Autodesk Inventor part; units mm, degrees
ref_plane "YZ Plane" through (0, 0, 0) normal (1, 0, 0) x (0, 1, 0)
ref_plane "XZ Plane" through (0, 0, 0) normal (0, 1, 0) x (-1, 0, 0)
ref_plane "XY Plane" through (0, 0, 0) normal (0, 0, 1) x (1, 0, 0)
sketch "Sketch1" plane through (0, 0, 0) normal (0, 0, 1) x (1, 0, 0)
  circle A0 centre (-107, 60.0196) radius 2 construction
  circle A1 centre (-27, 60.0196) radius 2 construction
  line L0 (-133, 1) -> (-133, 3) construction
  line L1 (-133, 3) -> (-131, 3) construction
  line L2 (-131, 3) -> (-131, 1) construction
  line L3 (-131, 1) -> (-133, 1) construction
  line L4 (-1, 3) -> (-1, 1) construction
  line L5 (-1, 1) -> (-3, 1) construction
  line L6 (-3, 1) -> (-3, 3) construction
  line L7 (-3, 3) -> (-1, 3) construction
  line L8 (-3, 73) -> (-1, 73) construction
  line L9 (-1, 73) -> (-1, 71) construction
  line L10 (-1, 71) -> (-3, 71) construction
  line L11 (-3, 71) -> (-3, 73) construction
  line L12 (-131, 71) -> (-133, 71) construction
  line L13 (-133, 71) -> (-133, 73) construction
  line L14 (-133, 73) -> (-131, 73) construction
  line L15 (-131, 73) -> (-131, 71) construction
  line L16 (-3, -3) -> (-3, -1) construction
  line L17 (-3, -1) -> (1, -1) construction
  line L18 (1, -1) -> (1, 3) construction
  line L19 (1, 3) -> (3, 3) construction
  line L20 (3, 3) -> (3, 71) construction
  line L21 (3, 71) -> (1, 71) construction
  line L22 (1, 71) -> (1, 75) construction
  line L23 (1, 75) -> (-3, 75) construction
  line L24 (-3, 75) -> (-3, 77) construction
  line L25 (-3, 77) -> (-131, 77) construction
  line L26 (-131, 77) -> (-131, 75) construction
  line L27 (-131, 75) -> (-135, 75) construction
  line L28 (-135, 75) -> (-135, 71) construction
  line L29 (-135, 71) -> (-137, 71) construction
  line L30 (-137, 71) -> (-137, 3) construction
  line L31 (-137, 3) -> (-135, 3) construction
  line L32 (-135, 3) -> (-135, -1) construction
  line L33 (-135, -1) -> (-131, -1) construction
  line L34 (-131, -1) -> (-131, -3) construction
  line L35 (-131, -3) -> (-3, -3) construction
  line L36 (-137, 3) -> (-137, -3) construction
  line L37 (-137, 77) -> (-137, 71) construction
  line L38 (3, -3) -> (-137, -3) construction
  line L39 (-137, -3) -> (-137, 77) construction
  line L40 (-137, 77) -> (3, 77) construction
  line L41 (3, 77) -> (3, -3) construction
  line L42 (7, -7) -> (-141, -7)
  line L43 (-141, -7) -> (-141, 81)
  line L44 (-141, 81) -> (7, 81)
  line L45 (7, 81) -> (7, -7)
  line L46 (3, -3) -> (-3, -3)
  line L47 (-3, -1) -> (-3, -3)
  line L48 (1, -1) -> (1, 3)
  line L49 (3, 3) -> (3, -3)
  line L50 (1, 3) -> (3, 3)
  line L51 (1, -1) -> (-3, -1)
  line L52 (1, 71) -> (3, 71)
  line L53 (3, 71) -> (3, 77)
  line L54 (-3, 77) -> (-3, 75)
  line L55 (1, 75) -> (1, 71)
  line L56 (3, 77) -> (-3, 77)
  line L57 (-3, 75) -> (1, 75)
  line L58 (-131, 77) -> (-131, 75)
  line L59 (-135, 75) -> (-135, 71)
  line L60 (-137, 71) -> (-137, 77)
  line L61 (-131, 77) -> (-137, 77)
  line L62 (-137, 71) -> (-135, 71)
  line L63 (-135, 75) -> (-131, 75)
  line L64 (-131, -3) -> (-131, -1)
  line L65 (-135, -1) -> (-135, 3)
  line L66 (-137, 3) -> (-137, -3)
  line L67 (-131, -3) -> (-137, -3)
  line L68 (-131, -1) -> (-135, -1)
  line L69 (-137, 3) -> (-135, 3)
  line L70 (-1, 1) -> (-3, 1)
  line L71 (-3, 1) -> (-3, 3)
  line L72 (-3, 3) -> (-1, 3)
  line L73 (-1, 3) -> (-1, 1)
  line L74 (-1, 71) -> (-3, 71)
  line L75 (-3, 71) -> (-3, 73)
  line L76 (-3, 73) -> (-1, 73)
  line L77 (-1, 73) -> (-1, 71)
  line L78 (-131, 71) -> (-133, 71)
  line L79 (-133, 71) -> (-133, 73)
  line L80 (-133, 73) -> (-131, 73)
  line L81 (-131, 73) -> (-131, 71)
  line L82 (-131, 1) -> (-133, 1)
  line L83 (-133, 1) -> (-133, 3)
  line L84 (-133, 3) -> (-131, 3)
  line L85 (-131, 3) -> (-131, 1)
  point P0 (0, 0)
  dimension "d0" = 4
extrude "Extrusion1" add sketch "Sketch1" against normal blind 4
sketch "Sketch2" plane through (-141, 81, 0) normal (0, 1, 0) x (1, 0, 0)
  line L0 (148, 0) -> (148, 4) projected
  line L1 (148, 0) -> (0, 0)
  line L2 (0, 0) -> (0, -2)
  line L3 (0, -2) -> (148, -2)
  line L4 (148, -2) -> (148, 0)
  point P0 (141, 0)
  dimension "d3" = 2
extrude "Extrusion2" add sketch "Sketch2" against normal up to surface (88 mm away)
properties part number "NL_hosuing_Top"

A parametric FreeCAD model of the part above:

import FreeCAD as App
import Part
import Sketcher

V = App.Vector


def add_polygon(sketch, points):
    """Adds a closed chain of lines whose ends are joined by coincident constraints."""
    first, n = sketch.GeometryCount, len(points)
    for a, b in zip(points, points[1:] + points[:1]):
        sketch.addGeometry(Part.LineSegment(App.Vector(*a, 0), App.Vector(*b, 0)), False)
    for i in range(n):
        sketch.addConstraint(Sketcher.Constraint("Coincident", first + i, 2, first + (i + 1) % n, 1))

doc = App.newDocument("Part")
body = doc.addObject("PartDesign::Body", "Body")

# Sketch on XY plane
sketch1 = body.newObject("Sketcher::SketchObject", "Sketch")
sketch1.AttachmentSupport = (doc.getObject("XY_Plane"), [""])
sketch1.MapMode = "FlatFace"
add_polygon(sketch1, [(-141, -7), (7, -7), (7, 81), (-141, 81)])  # lines 0-3
add_polygon(sketch1, [(-131, -1), (-131, -3), (-137, -3), (-137, 3), (-135, 3), (-135, -1)])  # lines 4-9
add_polygon(sketch1, [(-131, 3), (-131, 1), (-133, 1), (-133, 3)])  # lines 10-13
add_polygon(sketch1, [(3, 3), (3, -3), (-3, -3), (-3, -1), (1, -1), (1, 3)])  # lines 14-19
add_polygon(sketch1, [(-1, 3), (-1, 1), (-3, 1), (-3, 3)])  # lines 20-23
add_polygon(sketch1, [(-131, 73), (-131, 71), (-133, 71), (-133, 73)])  # lines 24-27
add_polygon(sketch1, [(-137, 77), (-131, 77), (-131, 75), (-135, 75), (-135, 71), (-137, 71)])  # lines 28-33
add_polygon(sketch1, [(-1, 73), (-1, 71), (-3, 71), (-3, 73)])  # lines 34-37
add_polygon(sketch1, [(3, 71), (1, 71), (1, 75), (-3, 75), (-3, 77), (3, 77)])  # lines 38-43
sketch1.addConstraint([
    Sketcher.Constraint("Horizontal", 0),
    Sketcher.Constraint("Vertical", 1),
    Sketcher.Constraint("Horizontal", 2),
    Sketcher.Constraint("Vertical", 3),
    Sketcher.Constraint("Vertical", 4),
    Sketcher.Constraint("Horizontal", 5),
    Sketcher.Constraint("Vertical", 6),
    Sketcher.Constraint("Horizontal", 7),
    Sketcher.Constraint("Vertical", 8),
    Sketcher.Constraint("Horizontal", 9),
    Sketcher.Constraint("Vertical", 10),
    Sketcher.Constraint("Horizontal", 11),
    Sketcher.Constraint("Vertical", 12),
    Sketcher.Constraint("Horizontal", 13),
    Sketcher.Constraint("Vertical", 14),
    Sketcher.Constraint("Horizontal", 15),
    Sketcher.Constraint("Vertical", 16),
    Sketcher.Constraint("Horizontal", 17),
    Sketcher.Constraint("Vertical", 18),
    Sketcher.Constraint("Horizontal", 19),
    Sketcher.Constraint("Vertical", 20),
    Sketcher.Constraint("Horizontal", 21),
    Sketcher.Constraint("Vertical", 22),
    Sketcher.Constraint("Horizontal", 23),
    Sketcher.Constraint("Vertical", 24),
    Sketcher.Constraint("Horizontal", 25),
    Sketcher.Constraint("Vertical", 26),
    Sketcher.Constraint("Horizontal", 27),
    Sketcher.Constraint("Horizontal", 28),
    Sketcher.Constraint("Vertical", 29),
    Sketcher.Constraint("Horizontal", 30),
    Sketcher.Constraint("Vertical", 31),
    Sketcher.Constraint("Horizontal", 32),
    Sketcher.Constraint("Vertical", 33),
    Sketcher.Constraint("Vertical", 34),
    Sketcher.Constraint("Horizontal", 35),
    Sketcher.Constraint("Vertical", 36),
    Sketcher.Constraint("Horizontal", 37),
    Sketcher.Constraint("Horizontal", 38),
    Sketcher.Constraint("Vertical", 39),
    Sketcher.Constraint("Horizontal", 40),
    Sketcher.Constraint("Vertical", 41),
    Sketcher.Constraint("Horizontal", 42),
    Sketcher.Constraint("Vertical", 43),
    Sketcher.Constraint("Symmetric", 15, 2, 19, 2, -1, 1),
    Sketcher.Constraint("Symmetric", 17, 2, 20, 2, -1, 1),
    Sketcher.Constraint("Symmetric", 14, 2, 22, 2, -1, 1),
    Sketcher.Constraint("Symmetric", 34, 2, 38, 2, -2),
    Sketcher.Constraint("Symmetric", 9, 2, 10, 2, -1),
    Sketcher.Constraint("Horizontal", 7, 2, 12, 2),
    Sketcher.Constraint("Horizontal", 5, 2, 14, 2),
    Sketcher.Constraint("Horizontal", 9, 2, 16, 2),
    Sketcher.Constraint("Horizontal", 13, 2, 18, 2),
    Sketcher.Constraint("Horizontal", 25, 2, 31, 2),
    Sketcher.Constraint("Horizontal", 32, 2, 34, 2),
    Sketcher.Constraint("Horizontal", 27, 2, 36, 2),
    Sketcher.Constraint("Horizontal", 30, 2, 39, 2),
    Sketcher.Constraint("Horizontal", 33, 2, 41, 2),
    Sketcher.Constraint("Vertical", 13, 2, 24, 2),
    Sketcher.Constraint("Vertical", 12, 2, 25, 2),
    Sketcher.Constraint("Vertical", 27, 2, 28, 2),
    Sketcher.Constraint("Vertical", 8, 2, 30, 2),
    Sketcher.Constraint("Vertical", 6, 2, 32, 2),
    Sketcher.Constraint("Vertical", 23, 2, 34, 2),
    Sketcher.Constraint("Vertical", 22, 2, 35, 2),
    Sketcher.Constraint("Vertical", 36, 2, 40, 2),
    Sketcher.Constraint("Vertical", 19, 2, 42, 2),
    Sketcher.Constraint("Equal", 7, 11),
    Sketcher.Constraint("Equal", 5, 15),
    Sketcher.Constraint("Equal", 9, 17),
    Sketcher.Constraint("Equal", 38, 4),
    Sketcher.Constraint("Equal", 42, 6),
    Sketcher.Constraint("Equal", 22, 24),
    Sketcher.Constraint("Equal", 26, 29),
    Sketcher.Constraint("Equal", 18, 31),
    Sketcher.Constraint("DistanceX", 9, 1, 9, 2, 4.0),
    Sketcher.Constraint("DistanceY", 3, 2, 4, 2, 4.0),
    Sketcher.Constraint("DistanceX", 3, 2, 5, 2, 4.0),
    Sketcher.Constraint("DistanceX", 14, 2, 0, 2, 4.0),
    Sketcher.Constraint("DistanceY", 28, 2, 2, 2, 4.0),
    Sketcher.Constraint("DistanceX", 0, 1, 0, 2, 148.0),
    Sketcher.Constraint("DistanceX", 5, 2, 5, 1, 6.0),
    Sketcher.Constraint("DistanceY", 1, 1, 1, 2, 88.0),
])
pad1 = body.newObject("PartDesign::Pad", "Pad")
pad1.Profile = sketch1
pad1.Length = 4
pad1.Reversed = True

# Sketch on XZ plane
sketch2 = body.newObject("Sketcher::SketchObject", "Sketch001")
sketch2.AttachmentSupport = (doc.getObject("XZ_Plane"), [""])
sketch2.MapMode = "FlatFace"
sketch2.AttachmentOffset = App.Placement(V(0, 0, -81), App.Rotation())
add_polygon(sketch2, [(7, 2), (7, 0), (-141, 0), (-141, 2)])  # lines 0-3
sketch2.addConstraint([
    Sketcher.Constraint("Vertical", 0),
    Sketcher.Constraint("Horizontal", 1),
    Sketcher.Constraint("Vertical", 2),
    Sketcher.Constraint("Horizontal", 3),
    Sketcher.Constraint("PointOnObject", 0, 2, -1),
    Sketcher.Constraint("DistanceY", 0, 2, 0, 1, 2.0),
    Sketcher.Constraint("DistanceX", 1, 2, 1, 1, 148.0),
    Sketcher.Constraint("DistanceX", -1, 1, 0, 2, 7.0),
])
pad2 = body.newObject("PartDesign::Pad", "Pad001")
pad2.Profile = sketch2
pad2.Length = 88

doc.recompute()
